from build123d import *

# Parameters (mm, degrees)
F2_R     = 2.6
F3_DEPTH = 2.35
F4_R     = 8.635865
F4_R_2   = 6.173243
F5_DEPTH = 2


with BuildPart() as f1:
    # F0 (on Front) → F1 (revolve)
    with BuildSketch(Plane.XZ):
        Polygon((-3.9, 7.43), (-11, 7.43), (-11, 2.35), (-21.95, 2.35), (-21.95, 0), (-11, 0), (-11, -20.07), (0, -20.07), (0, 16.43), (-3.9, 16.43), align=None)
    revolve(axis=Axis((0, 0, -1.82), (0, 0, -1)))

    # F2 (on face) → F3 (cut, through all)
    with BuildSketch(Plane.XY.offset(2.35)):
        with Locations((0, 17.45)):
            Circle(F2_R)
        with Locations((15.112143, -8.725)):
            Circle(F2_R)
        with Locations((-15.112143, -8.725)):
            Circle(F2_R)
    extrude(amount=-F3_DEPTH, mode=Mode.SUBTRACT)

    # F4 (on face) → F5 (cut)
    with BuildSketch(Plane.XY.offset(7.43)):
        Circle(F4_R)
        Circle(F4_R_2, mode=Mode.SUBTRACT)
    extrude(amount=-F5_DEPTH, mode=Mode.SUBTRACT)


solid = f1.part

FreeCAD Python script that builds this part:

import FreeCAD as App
import Part
import Sketcher

V = App.Vector
Q = App.Units.Quantity


def add_polygon(sketch, points):
    """Adds a closed chain of lines whose ends are joined by coincident constraints."""
    first, n = sketch.GeometryCount, len(points)
    for a, b in zip(points, points[1:] + points[:1]):
        sketch.addGeometry(Part.LineSegment(App.Vector(*a, 0), App.Vector(*b, 0)), False)
    for i in range(n):
        sketch.addConstraint(Sketcher.Constraint("Coincident", first + i, 2, first + (i + 1) % n, 1))

doc = App.newDocument("Part")
body = doc.addObject("PartDesign::Body", "Body")

# Sketch on XZ plane
sketch1 = body.newObject("Sketcher::SketchObject", "Sketch")
sketch1.AttachmentSupport = (doc.getObject("XZ_Plane"), [""])
sketch1.MapMode = "FlatFace"
add_polygon(sketch1, [(-3.9, 7.4), (-11, 7.4), (-11, 2.4), (-21.9, 2.4), (-21.9, 0), (-11, 0), (-11, -20.1), (0, -20.1), (0, 16.4), (-3.9, 16.4)])  # lines 0-9
sketch1.addConstraint([
    Sketcher.Constraint("Horizontal", 0),
    Sketcher.Constraint("Vertical", 1),
    Sketcher.Constraint("Horizontal", 2),
    Sketcher.Constraint("Vertical", 3),
    Sketcher.Constraint("Horizontal", 4),
    Sketcher.Constraint("Vertical", 5),
    Sketcher.Constraint("Horizontal", 6),
    Sketcher.Constraint("Vertical", 7),
    Sketcher.Constraint("Horizontal", 8),
    Sketcher.Constraint("Vertical", 9),
    Sketcher.Constraint("PointOnObject", 3, 2, -1),
    Sketcher.Constraint("PointOnObject", 6, 2, -2),
    Sketcher.Constraint("Vertical", 1, 2, 4, 2),
    Sketcher.Constraint("DistanceX", 6, 1, 6, 2, Q("11 mm")),
    Sketcher.Constraint("DistanceY", 9, 2, 9, 1, Q("9 mm")),
    Sketcher.Constraint("DistanceX", 0, 2, 0, 1, Q("7.1 mm")),
    Sketcher.Constraint("DistanceY", 7, 1, 7, 2, Q("36.5 mm")),
    Sketcher.Constraint("DistanceX", 2, 2, 2, 1, Q("10.95 mm")),
    Sketcher.Constraint("DistanceY", 1, 2, 1, 1, Q("5.08 mm")),
    Sketcher.Constraint("DistanceY", 3, 2, 3, 1, Q("2.35 mm")),
])
revolution = body.newObject("PartDesign::Revolution", "Revolution")
revolution.Profile = sketch1
revolution.ReferenceAxis = (sketch1, ["V_Axis"])
revolution.Angle = 360

# Sketch on XY plane
sketch2 = body.newObject("Sketcher::SketchObject", "Sketch001")
sketch2.AttachmentSupport = (doc.getObject("XY_Plane"), [""])
sketch2.MapMode = "FlatFace"
sketch2.AttachmentOffset = App.Placement(V(0, 0, 2.35), App.Rotation())
sketch2.addGeometry([
    Part.Circle(V(0, 17.4, 0), V(0, 0, 1), 2.6),
    Part.Circle(V(15.1, -8.7, 0), V(0, 0, 1), 2.6),
    Part.Circle(V(-15.1, -8.7, 0), V(0, 0, 1), 2.6),
], False)
sketch2.addConstraint([
    Sketcher.Constraint("Equal", 0, 1),
    Sketcher.Constraint("Equal", 1, 2),
    Sketcher.Constraint("Symmetric", 1, 3, 2, 3, -2),
    Sketcher.Constraint("PointOnObject", 0, 3, -2),
    Sketcher.Constraint("Diameter", 0, Q("5.2 mm")),
    Sketcher.Constraint("DistanceY", -1, 1, 0, 3, Q("17.45 mm")),
    Sketcher.Constraint("DistanceY", 1, 3, -1, 1, Q("8.725 mm")),
    Sketcher.Constraint("DistanceX", -1, 1, 1, 3, Q("15.112143 mm")),
])
pocket1 = body.newObject("PartDesign::Pocket", "Pocket")
pocket1.Profile = sketch2
pocket1.Type = "ThroughAll"

# Sketch on XY plane
sketch3 = body.newObject("Sketcher::SketchObject", "Sketch002")
sketch3.AttachmentSupport = (doc.getObject("XY_Plane"), [""])
sketch3.MapMode = "FlatFace"
sketch3.AttachmentOffset = App.Placement(V(0, 0, 7.43), App.Rotation())
sketch3.addGeometry([
    Part.Circle(V(0, 0, 0), V(0, 0, 1), 9),
    Part.Circle(V(0, 0, 0), V(0, 0, 1), 6),
], False)
sketch3.addConstraint([
    Sketcher.Constraint("Coincident", 0, 3, -1, 1),
    Sketcher.Constraint("Coincident", 1, 3, -1, 1),
    Sketcher.Constraint("Diameter", 0, Q("17.27173 mm")),
    Sketcher.Constraint("Diameter", 1, Q("12.346486 mm")),
])
pocket2 = body.newObject("PartDesign::Pocket", "Pocket001")
pocket2.Profile = sketch3
pocket2.Length = 2

doc.recompute()
